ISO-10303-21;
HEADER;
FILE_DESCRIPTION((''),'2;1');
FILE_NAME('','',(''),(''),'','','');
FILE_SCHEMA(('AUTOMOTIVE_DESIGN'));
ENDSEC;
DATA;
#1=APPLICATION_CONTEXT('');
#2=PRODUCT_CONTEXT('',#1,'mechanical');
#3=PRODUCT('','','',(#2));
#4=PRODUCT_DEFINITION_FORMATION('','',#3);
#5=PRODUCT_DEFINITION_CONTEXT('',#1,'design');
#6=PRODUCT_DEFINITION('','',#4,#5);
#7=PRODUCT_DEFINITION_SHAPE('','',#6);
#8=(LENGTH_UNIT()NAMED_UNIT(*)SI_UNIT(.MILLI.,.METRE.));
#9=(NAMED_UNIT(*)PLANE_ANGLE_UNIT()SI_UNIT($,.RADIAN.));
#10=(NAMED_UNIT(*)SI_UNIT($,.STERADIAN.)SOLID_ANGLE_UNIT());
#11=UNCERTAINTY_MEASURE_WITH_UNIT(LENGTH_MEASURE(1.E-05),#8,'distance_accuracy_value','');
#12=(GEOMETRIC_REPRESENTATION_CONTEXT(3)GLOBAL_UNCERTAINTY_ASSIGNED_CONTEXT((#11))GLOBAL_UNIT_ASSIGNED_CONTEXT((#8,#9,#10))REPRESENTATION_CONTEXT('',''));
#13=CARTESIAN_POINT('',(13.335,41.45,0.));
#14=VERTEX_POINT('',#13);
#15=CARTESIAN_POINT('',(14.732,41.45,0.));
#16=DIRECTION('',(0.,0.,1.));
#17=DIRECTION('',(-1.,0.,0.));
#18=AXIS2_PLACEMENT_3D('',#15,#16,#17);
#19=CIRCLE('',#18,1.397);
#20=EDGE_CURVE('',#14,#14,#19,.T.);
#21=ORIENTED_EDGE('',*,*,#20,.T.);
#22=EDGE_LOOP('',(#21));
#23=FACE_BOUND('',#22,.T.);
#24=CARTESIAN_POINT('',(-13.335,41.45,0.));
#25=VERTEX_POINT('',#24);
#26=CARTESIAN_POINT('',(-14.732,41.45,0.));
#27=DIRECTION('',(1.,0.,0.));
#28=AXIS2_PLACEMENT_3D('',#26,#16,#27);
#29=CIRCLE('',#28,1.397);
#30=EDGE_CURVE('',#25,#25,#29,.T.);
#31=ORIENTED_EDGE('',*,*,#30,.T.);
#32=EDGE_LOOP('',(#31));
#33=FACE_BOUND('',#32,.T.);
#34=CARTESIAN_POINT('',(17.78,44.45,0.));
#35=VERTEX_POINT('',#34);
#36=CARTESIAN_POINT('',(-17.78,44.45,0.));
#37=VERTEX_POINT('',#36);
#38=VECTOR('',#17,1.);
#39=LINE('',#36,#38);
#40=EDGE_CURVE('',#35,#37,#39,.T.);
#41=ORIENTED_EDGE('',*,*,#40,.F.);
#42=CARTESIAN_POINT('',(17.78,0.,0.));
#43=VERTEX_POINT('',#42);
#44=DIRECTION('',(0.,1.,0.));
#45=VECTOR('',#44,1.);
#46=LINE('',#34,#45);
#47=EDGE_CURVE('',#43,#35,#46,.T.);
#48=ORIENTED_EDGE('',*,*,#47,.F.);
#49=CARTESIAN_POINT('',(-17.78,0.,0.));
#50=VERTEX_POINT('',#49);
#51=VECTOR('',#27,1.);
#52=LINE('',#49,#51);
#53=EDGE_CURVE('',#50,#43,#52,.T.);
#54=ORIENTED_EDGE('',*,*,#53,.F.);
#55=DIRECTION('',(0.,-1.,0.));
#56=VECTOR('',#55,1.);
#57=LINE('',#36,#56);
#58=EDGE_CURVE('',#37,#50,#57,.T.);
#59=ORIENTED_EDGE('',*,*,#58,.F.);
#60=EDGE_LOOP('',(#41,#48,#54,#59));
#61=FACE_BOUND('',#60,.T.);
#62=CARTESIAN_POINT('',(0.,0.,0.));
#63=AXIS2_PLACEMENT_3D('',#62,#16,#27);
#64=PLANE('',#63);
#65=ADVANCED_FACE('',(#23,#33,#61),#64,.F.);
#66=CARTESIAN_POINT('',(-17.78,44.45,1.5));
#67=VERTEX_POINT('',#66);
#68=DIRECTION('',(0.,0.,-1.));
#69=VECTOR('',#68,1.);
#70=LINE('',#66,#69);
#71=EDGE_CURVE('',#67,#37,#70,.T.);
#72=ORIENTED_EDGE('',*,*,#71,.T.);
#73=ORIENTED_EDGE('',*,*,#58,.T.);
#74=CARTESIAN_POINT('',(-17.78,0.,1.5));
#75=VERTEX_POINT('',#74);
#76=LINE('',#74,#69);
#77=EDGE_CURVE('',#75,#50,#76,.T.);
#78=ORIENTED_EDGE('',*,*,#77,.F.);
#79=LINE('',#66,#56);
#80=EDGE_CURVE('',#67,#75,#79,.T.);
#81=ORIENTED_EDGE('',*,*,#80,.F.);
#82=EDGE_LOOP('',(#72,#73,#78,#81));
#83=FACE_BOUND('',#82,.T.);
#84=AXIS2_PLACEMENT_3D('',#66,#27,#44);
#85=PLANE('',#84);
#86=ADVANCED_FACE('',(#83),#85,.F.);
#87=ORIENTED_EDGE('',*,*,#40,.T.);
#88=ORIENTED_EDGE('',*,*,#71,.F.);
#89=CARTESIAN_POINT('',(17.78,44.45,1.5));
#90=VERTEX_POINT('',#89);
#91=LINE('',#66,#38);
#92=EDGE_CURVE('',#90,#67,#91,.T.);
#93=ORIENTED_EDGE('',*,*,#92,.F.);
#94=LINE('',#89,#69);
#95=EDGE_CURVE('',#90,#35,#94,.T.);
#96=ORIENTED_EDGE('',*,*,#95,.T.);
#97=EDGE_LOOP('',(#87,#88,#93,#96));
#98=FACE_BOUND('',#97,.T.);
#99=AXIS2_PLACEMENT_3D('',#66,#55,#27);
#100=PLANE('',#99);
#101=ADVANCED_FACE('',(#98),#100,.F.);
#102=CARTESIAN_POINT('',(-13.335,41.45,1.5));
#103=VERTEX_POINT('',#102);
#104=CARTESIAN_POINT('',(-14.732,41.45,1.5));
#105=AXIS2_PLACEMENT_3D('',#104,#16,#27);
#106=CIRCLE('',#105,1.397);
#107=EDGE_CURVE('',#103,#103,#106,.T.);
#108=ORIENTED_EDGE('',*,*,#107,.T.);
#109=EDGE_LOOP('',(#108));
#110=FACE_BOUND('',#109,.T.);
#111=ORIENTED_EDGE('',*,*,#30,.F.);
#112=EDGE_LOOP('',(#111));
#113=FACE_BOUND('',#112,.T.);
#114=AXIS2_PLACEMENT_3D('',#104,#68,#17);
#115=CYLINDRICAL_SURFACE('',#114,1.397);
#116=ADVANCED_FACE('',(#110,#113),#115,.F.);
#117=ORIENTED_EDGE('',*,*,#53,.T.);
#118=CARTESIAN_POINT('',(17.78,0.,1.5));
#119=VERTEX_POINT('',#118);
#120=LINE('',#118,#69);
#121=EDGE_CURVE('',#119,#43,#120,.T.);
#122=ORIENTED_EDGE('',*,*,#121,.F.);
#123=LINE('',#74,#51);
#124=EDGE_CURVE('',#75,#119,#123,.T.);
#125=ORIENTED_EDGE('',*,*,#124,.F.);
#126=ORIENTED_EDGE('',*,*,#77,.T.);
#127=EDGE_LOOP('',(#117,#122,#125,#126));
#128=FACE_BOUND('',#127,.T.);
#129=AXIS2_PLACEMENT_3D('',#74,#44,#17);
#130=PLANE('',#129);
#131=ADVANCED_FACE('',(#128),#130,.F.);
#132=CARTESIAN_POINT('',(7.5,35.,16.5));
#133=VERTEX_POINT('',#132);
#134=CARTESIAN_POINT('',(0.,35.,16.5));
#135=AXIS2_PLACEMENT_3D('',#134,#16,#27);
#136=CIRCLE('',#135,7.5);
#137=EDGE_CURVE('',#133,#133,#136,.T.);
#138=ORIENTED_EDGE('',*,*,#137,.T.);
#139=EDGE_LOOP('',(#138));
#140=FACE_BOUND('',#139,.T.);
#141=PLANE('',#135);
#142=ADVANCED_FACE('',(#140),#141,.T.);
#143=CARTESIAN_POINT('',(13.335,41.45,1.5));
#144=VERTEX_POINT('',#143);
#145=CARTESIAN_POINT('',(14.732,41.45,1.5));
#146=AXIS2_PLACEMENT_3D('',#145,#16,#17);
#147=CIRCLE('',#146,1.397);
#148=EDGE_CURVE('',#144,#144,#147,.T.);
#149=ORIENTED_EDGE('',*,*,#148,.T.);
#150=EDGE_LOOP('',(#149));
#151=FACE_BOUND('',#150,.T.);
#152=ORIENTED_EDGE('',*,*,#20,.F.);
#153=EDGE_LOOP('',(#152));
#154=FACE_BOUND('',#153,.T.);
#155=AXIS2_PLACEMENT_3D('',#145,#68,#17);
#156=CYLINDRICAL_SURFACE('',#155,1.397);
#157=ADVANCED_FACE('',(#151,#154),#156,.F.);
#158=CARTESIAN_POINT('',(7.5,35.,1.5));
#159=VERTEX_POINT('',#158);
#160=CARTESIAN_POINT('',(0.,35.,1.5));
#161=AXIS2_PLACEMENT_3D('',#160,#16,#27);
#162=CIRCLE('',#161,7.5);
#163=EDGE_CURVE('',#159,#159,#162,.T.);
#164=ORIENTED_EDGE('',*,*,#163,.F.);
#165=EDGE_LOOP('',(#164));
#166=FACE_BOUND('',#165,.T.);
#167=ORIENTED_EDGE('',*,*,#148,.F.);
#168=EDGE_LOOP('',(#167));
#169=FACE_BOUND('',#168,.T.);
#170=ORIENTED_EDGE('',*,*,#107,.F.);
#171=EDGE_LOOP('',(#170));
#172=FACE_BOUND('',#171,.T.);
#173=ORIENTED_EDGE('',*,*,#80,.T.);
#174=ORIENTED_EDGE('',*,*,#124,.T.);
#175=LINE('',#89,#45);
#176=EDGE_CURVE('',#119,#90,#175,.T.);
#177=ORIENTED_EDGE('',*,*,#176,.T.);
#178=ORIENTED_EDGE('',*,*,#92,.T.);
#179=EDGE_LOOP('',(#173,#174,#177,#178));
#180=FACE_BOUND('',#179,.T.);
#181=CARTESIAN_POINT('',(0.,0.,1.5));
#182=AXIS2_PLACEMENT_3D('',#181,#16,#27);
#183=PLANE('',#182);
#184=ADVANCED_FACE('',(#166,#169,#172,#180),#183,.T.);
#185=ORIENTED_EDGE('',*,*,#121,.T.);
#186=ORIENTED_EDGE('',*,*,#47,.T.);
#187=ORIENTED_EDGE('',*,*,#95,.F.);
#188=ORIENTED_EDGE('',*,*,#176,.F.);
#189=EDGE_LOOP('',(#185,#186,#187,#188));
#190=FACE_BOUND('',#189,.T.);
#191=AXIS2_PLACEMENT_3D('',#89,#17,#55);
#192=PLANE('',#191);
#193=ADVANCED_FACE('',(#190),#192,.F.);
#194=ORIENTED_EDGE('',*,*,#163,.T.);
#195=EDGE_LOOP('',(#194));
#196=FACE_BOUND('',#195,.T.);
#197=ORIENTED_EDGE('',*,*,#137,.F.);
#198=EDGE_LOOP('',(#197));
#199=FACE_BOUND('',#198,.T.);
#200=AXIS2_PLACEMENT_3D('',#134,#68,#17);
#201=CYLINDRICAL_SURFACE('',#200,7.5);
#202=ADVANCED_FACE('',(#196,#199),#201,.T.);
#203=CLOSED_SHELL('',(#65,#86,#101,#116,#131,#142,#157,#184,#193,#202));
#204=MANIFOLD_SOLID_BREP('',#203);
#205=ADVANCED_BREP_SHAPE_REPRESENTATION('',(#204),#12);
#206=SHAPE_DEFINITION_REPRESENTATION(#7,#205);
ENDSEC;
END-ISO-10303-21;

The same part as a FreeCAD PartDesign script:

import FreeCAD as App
import Part
import Sketcher
Q = App.Units.Quantity

doc = App.newDocument("Part")
body = doc.addObject("PartDesign::Body", "Body")

# Sketch on XY plane
sketch1 = doc.addObject("Sketcher::SketchObject", "Sketch")
body.addObject(sketch1)
sketch1.AttachmentSupport = (doc.XY_Plane, [""])
sketch1.MapMode = "FlatFace"
sketch1.addGeometry([
    Part.LineSegment(App.Vector(-17.8, 44.5, 0), App.Vector(-17.8, 0, 0)),  # 0
    Part.LineSegment(App.Vector(-17.8, 0, 0), App.Vector(17.8, 0, 0)),  # 1
    Part.LineSegment(App.Vector(17.8, 0, 0), App.Vector(17.8, 44.5, 0)),  # 2
    Part.LineSegment(App.Vector(17.8, 44.5, 0), App.Vector(-17.8, 44.5, 0)),  # 3
    Part.Circle(App.Vector(-14.7, 41.5, 0), App.Vector(0, 0, 1), 1.4),  # 4
    Part.Circle(App.Vector(14.7, 41.5, 0), App.Vector(0, 0, 1), 1.4),  # 5
], False)
sketch1.addConstraint([
    Sketcher.Constraint("Coincident", 0, 2, 1, 1),
    Sketcher.Constraint("Coincident", 1, 2, 2, 1),
    Sketcher.Constraint("Coincident", 2, 2, 3, 1),
    Sketcher.Constraint("Coincident", 3, 2, 0, 1),
    Sketcher.Constraint("Vertical", 0),
    Sketcher.Constraint("Horizontal", 1),
    Sketcher.Constraint("Vertical", 2),
    Sketcher.Constraint("Horizontal", 3),
    Sketcher.Constraint("Equal", 4, 5),
    Sketcher.Constraint("Symmetric", 0, 2, 1, 2, -1, 1),
    Sketcher.Constraint("Symmetric", 4, 3, 5, 3, -2),
    Sketcher.Constraint("Diameter", 4, Q("0.11 in")),
    Sketcher.Constraint("DistanceX", 1, 1, 1, 2, Q("1.4 in")),
    Sketcher.Constraint("DistanceY", 0, 2, 0, 1, Q("1.75 in")),
    Sketcher.Constraint("DistanceX", 4, 3, -1, 1, Q("0.58 in")),
    Sketcher.Constraint("DistanceY", -1, 1, 4, 3, Q("41.45 mm")),
])
pad1 = doc.addObject("PartDesign::Pad", "Pad")
body.addObject(pad1)
pad1.Profile = sketch1
pad1.Length = 1.5

# Sketch on XY plane
sketch2 = doc.addObject("Sketcher::SketchObject", "Sketch001")
body.addObject(sketch2)
sketch2.AttachmentSupport = (doc.XY_Plane, [""])
sketch2.MapMode = "FlatFace"
sketch2.AttachmentOffset = App.Placement(App.Vector(0, 0, 1.5), App.Rotation())
sketch2.addGeometry(Part.Circle(App.Vector(0, 35, 0), App.Vector(0, 0, 1), 8), False)
sketch2.addConstraint([
    Sketcher.Constraint("PointOnObject", 0, 3, -2),
    Sketcher.Constraint("Diameter", 0, Q("15 mm")),
    Sketcher.Constraint("DistanceY", -1, 1, 0, 3, Q("35 mm")),
])
pad2 = doc.addObject("PartDesign::Pad", "Pad001")
body.addObject(pad2)
pad2.Profile = sketch2
pad2.Length = 15

doc.recompute()
